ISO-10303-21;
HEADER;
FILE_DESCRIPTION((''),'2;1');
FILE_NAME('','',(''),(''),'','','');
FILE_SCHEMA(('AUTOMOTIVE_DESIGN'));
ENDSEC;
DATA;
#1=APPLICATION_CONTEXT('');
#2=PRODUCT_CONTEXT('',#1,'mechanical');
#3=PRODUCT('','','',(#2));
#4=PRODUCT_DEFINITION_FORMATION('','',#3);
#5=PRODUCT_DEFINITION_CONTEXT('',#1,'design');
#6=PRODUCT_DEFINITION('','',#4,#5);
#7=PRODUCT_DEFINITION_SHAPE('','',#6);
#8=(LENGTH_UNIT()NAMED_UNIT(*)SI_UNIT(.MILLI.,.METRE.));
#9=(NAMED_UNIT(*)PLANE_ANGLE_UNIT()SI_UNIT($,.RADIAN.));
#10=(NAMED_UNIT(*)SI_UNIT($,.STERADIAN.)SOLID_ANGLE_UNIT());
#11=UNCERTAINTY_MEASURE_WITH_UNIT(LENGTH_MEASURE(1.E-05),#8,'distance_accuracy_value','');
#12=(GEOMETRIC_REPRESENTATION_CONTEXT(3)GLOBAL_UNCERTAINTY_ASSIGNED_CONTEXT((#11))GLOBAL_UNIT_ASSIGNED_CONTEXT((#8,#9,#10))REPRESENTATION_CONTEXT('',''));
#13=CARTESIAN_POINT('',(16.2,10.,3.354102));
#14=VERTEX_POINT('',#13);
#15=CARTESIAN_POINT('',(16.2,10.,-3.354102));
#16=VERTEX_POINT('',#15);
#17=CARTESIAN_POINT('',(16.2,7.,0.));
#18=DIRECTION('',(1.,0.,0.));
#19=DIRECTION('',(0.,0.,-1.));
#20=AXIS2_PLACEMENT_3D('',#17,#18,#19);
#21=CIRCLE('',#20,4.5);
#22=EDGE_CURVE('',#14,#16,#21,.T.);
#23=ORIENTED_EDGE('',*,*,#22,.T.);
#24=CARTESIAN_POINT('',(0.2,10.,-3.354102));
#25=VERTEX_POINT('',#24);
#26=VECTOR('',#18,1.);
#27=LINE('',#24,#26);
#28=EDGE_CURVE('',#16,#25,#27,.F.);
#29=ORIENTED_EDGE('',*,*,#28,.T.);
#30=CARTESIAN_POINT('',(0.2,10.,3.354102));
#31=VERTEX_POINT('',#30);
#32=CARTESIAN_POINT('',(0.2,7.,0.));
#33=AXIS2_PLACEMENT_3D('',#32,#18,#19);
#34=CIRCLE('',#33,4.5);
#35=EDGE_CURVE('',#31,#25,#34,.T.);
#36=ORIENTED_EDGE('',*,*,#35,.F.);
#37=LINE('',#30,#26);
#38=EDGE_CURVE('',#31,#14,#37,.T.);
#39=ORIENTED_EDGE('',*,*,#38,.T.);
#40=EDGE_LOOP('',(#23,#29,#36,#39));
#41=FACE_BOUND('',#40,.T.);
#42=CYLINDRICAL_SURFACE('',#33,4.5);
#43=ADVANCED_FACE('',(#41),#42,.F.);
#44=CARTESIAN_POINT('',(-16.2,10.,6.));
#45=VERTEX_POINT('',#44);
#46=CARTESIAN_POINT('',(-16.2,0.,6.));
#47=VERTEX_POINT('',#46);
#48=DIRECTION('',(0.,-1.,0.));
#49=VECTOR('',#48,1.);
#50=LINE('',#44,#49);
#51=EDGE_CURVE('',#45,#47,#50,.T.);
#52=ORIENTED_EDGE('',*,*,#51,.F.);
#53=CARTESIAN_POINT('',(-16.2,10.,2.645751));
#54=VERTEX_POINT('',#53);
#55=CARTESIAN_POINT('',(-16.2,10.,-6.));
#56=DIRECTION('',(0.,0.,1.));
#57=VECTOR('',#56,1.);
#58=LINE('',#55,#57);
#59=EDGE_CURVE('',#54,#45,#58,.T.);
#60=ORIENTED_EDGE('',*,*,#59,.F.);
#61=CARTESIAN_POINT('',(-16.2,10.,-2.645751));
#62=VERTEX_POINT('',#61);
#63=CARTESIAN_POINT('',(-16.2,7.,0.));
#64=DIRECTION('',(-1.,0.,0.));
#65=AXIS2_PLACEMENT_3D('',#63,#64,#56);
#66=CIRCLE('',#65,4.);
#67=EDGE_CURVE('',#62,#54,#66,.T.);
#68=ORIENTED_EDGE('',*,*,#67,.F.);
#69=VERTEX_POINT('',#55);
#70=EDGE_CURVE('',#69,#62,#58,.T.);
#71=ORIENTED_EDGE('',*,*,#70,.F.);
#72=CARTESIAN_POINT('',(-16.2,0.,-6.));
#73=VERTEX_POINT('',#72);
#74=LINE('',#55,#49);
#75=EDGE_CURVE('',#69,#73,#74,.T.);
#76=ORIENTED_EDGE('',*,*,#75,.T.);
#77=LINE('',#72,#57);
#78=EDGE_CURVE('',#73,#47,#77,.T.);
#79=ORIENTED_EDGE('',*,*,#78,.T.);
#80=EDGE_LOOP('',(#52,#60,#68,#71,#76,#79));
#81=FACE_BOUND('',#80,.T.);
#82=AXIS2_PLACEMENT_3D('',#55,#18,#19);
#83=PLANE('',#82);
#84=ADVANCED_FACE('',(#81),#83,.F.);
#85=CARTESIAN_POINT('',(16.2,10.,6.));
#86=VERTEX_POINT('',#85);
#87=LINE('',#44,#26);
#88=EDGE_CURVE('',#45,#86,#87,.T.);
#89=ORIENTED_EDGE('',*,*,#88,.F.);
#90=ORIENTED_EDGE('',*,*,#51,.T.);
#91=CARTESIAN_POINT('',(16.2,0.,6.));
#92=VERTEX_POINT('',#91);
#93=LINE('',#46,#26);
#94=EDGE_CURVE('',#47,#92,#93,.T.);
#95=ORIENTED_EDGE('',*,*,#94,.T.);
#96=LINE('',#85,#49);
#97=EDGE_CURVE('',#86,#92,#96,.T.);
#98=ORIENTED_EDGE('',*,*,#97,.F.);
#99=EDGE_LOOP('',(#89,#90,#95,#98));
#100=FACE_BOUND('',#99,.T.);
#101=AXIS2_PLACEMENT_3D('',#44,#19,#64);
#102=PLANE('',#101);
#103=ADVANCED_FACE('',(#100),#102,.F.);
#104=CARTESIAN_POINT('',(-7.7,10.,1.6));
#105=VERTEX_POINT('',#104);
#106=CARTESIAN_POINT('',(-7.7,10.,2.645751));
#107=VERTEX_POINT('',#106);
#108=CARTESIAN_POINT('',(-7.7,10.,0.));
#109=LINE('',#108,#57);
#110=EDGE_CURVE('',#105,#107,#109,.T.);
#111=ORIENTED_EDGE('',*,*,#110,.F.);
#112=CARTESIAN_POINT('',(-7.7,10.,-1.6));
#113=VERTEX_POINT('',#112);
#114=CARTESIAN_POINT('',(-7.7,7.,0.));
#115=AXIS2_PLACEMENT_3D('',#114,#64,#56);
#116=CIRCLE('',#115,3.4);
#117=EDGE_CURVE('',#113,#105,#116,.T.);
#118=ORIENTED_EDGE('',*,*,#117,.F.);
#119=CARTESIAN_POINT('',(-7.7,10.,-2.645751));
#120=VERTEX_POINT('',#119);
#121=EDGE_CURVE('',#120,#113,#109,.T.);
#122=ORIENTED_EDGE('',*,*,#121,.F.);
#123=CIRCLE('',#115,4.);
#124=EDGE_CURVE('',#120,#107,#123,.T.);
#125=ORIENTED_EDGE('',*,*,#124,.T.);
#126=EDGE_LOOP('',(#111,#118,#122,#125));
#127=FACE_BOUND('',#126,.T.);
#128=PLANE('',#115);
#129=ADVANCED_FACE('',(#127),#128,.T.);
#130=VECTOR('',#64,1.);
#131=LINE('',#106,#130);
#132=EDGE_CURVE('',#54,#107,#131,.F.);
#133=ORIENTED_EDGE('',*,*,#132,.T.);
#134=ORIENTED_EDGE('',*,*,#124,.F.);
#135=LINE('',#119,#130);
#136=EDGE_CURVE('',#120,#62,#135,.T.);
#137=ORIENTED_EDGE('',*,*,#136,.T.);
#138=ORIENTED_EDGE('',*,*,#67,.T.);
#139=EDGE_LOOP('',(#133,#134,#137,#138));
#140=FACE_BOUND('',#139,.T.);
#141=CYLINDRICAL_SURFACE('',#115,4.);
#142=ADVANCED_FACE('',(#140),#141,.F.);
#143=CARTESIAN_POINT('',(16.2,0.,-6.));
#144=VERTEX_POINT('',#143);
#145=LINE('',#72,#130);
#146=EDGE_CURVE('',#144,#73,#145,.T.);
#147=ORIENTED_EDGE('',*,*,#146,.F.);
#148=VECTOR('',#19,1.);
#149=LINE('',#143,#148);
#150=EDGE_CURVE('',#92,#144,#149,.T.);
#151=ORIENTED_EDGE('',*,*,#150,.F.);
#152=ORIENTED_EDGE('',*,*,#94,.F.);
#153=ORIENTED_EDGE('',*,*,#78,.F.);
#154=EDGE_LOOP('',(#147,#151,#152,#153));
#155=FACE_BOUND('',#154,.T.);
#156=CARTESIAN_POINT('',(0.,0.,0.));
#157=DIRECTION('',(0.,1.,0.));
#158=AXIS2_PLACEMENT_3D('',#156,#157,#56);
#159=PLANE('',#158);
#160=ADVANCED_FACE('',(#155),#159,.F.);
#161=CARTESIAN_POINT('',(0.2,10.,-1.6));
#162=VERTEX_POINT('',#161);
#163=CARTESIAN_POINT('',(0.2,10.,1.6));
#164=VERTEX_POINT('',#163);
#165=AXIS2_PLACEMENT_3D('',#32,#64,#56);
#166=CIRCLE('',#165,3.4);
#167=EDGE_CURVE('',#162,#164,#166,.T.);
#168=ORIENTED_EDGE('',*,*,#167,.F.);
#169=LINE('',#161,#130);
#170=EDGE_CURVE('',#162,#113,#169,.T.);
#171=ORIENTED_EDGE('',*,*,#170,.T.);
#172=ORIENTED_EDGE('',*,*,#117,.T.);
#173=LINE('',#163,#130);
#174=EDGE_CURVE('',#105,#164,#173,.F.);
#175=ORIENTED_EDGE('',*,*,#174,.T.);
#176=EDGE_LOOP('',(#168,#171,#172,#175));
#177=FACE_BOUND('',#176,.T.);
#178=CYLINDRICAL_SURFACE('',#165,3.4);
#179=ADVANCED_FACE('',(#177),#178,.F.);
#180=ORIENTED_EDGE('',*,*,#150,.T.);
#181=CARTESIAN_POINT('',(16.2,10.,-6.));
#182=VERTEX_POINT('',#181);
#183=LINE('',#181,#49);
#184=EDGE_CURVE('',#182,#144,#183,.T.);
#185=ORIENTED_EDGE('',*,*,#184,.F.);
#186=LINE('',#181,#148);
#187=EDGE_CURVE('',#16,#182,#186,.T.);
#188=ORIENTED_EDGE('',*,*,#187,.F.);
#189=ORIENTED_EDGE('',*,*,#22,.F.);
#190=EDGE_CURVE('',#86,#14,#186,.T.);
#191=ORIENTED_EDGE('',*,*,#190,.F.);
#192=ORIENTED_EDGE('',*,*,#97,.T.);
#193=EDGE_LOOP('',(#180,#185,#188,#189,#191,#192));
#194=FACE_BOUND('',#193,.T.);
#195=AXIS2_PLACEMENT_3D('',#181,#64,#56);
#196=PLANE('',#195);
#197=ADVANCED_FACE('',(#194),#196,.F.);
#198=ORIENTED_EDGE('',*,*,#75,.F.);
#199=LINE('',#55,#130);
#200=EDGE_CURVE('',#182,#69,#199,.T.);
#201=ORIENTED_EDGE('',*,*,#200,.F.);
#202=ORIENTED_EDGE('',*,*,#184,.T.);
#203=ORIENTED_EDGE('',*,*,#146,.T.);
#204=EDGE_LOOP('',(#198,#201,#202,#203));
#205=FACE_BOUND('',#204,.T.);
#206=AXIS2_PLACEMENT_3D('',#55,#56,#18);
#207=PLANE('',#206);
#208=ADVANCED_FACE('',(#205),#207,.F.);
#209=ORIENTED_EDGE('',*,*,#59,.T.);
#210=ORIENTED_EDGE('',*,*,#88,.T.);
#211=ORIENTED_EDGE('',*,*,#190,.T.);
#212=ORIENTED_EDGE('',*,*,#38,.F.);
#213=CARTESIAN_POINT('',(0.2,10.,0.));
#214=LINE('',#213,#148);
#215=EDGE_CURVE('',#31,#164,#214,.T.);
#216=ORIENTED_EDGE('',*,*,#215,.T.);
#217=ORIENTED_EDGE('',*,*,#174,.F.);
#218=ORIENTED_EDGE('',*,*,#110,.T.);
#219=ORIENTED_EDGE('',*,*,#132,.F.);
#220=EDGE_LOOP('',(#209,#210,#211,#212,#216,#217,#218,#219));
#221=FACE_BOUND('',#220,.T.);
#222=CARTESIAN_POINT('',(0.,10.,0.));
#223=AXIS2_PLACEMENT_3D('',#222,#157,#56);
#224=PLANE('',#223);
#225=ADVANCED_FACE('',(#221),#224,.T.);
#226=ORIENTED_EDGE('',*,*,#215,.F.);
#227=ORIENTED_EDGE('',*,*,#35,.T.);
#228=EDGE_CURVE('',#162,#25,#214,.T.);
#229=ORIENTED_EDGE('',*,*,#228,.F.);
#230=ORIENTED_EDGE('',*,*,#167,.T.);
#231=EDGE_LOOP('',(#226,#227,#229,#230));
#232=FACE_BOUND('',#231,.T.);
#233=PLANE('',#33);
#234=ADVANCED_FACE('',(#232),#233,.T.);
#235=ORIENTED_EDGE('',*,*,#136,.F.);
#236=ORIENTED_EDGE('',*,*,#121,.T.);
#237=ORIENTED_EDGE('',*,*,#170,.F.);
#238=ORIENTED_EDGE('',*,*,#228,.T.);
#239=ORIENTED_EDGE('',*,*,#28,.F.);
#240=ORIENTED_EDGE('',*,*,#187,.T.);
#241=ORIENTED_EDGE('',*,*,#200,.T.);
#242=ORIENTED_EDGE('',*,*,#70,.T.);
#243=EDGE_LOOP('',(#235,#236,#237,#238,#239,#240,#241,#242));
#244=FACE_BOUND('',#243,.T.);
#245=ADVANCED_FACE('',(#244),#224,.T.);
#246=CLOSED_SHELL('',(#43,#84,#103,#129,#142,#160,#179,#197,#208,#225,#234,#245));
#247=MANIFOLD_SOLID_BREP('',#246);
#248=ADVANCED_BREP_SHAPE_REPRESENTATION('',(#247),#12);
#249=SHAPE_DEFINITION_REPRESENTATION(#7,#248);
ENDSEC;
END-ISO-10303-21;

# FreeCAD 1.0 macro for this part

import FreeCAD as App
import Part
import Sketcher
from FreeCAD import Vector
Q = App.Units.Quantity

doc = App.newDocument("Part")
body = doc.addObject("PartDesign::Body", "Body")

# Sketch on XZ plane
sketch1 = body.newObject("Sketcher::SketchObject", "Sketch")
sketch1.AttachmentSupport = (doc.getObject("XZ_Plane"), [""])
sketch1.MapMode = "FlatFace"
sketch1.addGeometry([
    Part.LineSegment(Vector(-16.2, -6, 0), Vector(-16.2, 6, 0)),
    Part.LineSegment(Vector(-16.2, 6, 0), Vector(16.2, 6, 0)),
    Part.LineSegment(Vector(16.2, 6, 0), Vector(16.2, -6, 0)),
    Part.LineSegment(Vector(16.2, -6, 0), Vector(-16.2, -6, 0)),
], False)
sketch1.addConstraint([
    Sketcher.Constraint("Coincident", 0, 2, 1, 1),
    Sketcher.Constraint("Coincident", 1, 2, 2, 1),
    Sketcher.Constraint("Coincident", 2, 2, 3, 1),
    Sketcher.Constraint("Coincident", 3, 2, 0, 1),
    Sketcher.Constraint("Vertical", 0),
    Sketcher.Constraint("Horizontal", 1),
    Sketcher.Constraint("Vertical", 2),
    Sketcher.Constraint("Horizontal", 3),
    Sketcher.Constraint("Symmetric", 0, 2, 2, 2, -1, 1),
    Sketcher.Constraint("DistanceY", 0, 1, 0, 2, Q("12 mm")),
    Sketcher.Constraint("DistanceX", 1, 1, 1, 2, Q("32.4 mm")),
])
pad1 = body.newObject("PartDesign::Pad", "Pad")
pad1.Profile = sketch1
pad1.Length = 10
pad1.Reversed = True

# Sketch on YZ plane
sketch2 = body.newObject("Sketcher::SketchObject", "Sketch001")
sketch2.AttachmentSupport = (doc.getObject("YZ_Plane"), [""])
sketch2.MapMode = "FlatFace"
sketch2.AttachmentOffset = App.Placement(Vector(0, 0, -16.2), App.Rotation())
sketch2.addGeometry(Part.Circle(Vector(7, 0, 0), Vector(0, 0, 1), 4), False)
sketch2.addConstraint([
    Sketcher.Constraint("PointOnObject", 0, 3, -1),
    Sketcher.Constraint("Diameter", 0, Q("8 mm")),
    Sketcher.Constraint("DistanceX", -1, 1, 0, 3, Q("7 mm")),
])
pocket1 = body.newObject("PartDesign::Pocket", "Pocket")
pocket1.Profile = sketch2
pocket1.Length = 8.5
pocket1.Reversed = True

# Sketch on YZ plane
sketch3 = body.newObject("Sketcher::SketchObject", "Sketch002")
sketch3.AttachmentSupport = (doc.getObject("YZ_Plane"), [""])
sketch3.MapMode = "FlatFace"
sketch3.AttachmentOffset = App.Placement(Vector(0, 0, -7.7), App.Rotation())
sketch3.addGeometry(Part.Circle(Vector(7, 0, 0), Vector(0, 0, 1), 3.4), False)
sketch3.addConstraint([
    Sketcher.Constraint("PointOnObject", 0, 3, -1),
    Sketcher.Constraint("Diameter", 0, Q("6.8 mm")),
    Sketcher.Constraint("DistanceX", -1, 1, 0, 3, Q("7 mm")),
])
pocket2 = body.newObject("PartDesign::Pocket", "Pocket001")
pocket2.Profile = sketch3
pocket2.Length = 7.9
pocket2.Reversed = True

# Sketch on YZ plane
sketch4 = body.newObject("Sketcher::SketchObject", "Sketch003")
sketch4.AttachmentSupport = (doc.getObject("YZ_Plane"), [""])
sketch4.MapMode = "FlatFace"
sketch4.AttachmentOffset = App.Placement(Vector(0, 0, 16.2), App.Rotation())
sketch4.addGeometry(Part.Circle(Vector(7, 0, 0), Vector(0, 0, 1), 4.5), False)
sketch4.addConstraint([
    Sketcher.Constraint("PointOnObject", 0, 3, -1),
    Sketcher.Constraint("Diameter", 0, Q("9 mm")),
    Sketcher.Constraint("DistanceX", -1, 1, 0, 3, Q("7 mm")),
])
pocket3 = body.newObject("PartDesign::Pocket", "Pocket002")
pocket3.Profile = sketch4
pocket3.Length = 16

doc.recompute()
